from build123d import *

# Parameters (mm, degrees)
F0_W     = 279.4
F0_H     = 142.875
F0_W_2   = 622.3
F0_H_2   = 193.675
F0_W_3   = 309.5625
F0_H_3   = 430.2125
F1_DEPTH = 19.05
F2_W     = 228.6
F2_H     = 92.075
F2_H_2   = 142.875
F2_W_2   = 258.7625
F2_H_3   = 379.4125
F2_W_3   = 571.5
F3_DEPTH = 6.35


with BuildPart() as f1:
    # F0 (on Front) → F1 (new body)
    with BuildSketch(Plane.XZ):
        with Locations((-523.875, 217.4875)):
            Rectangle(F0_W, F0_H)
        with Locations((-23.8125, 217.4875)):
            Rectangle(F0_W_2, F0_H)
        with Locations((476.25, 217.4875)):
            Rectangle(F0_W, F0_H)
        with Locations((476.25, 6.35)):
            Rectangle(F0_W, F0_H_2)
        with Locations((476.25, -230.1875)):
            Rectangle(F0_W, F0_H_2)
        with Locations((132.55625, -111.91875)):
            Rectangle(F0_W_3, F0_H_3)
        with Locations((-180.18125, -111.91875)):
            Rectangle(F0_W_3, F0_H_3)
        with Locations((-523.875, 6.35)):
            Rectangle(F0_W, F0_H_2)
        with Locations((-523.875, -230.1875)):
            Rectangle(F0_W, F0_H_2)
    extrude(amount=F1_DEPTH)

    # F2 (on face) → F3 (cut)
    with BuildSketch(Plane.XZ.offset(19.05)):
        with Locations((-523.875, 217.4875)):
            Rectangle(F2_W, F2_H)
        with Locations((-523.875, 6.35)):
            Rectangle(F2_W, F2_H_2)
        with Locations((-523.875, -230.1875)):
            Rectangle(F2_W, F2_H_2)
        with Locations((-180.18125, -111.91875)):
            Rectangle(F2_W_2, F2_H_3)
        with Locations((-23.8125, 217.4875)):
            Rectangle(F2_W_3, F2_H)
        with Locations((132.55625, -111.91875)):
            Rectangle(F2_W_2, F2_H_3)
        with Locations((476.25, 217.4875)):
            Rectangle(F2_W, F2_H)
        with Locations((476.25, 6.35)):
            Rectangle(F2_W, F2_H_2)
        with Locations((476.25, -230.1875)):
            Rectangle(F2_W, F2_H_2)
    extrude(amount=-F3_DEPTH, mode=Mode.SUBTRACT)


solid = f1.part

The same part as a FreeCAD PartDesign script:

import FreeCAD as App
import Part
import Sketcher
from FreeCAD import Vector
Q = App.Units.Quantity


def add_polygon(sketch, points):
    """Adds a closed chain of lines whose ends are joined by coincident constraints."""
    first, n = sketch.GeometryCount, len(points)
    for a, b in zip(points, points[1:] + points[:1]):
        sketch.addGeometry(Part.LineSegment(App.Vector(*a, 0), App.Vector(*b, 0)), False)
    for i in range(n):
        sketch.addConstraint(Sketcher.Constraint("Coincident", first + i, 2, first + (i + 1) % n, 1))

doc = App.newDocument("Part")
params = doc.addObject("Spreadsheet::Sheet", "Params")
for row, (alias, value) in enumerate([
    ("sketch1_width", "11 in"),
    ("sketch1_width2", "24.5 in"),
    ("sketch1_width3", "12.1875 in"),
    ("sketch1_height", "5.625 in"),
    ("sketch1_height2", "7.625 in"),
    ("pad1_length", "0.75 in"),
    ("sketch2_width", "9 in"),
    ("sketch2_width2", "22.5 in"),
    ("sketch2_width3", "10.1875 in"),
    ("sketch2_height", "3.625 in"),
    ("sketch2_height2", "5.625 in"),
    ("pocket1_length", "0.25 in"),
], start=1):
    params.set(f"A{row}", alias)
    params.set(f"B{row}", "=" + value)
    params.setAlias(f"B{row}", alias)

body = doc.addObject("PartDesign::Body", "Body")
body.AllowCompound = True

sketch1 = doc.addObject("Sketcher::SketchObject", "Sketch")
body.addObject(sketch1)
sketch1.AttachmentSupport = (doc.XZ_Plane, [""])
sketch1.MapMode = "FlatFace"
add_polygon(sketch1, [(-664, 289), (-664, 146), (-384, 146), (-384, 289)])
add_polygon(sketch1, [(-335, 289), (-335, 146), (287, 146), (287, 289)])
add_polygon(sketch1, [(337, 289), (337, 146), (616, 146), (616, 289)])
add_polygon(sketch1, [(337, 103), (337, -90), (616, -90), (616, 103)])
add_polygon(sketch1, [(337, -133), (337, -327), (616, -327), (616, -133)])
add_polygon(sketch1, [(-22, 103), (-22, -327), (287, -327), (287, 103)])
add_polygon(sketch1, [(-335, 103), (-335, -327), (-25, -327), (-25, 103)])
add_polygon(sketch1, [(-664, 103), (-664, -90), (-384, -90), (-384, 103)])
add_polygon(sketch1, [(-664, -133), (-664, -327), (-384, -327), (-384, -133)])
sketch1.addConstraint([
    Sketcher.Constraint("Vertical", 0),
    Sketcher.Constraint("Horizontal", 1),
    Sketcher.Constraint("Vertical", 2),
    Sketcher.Constraint("Horizontal", 3),
    Sketcher.Constraint("Vertical", 4),
    Sketcher.Constraint("Horizontal", 5),
    Sketcher.Constraint("Vertical", 6),
    Sketcher.Constraint("Horizontal", 7),
    Sketcher.Constraint("Vertical", 8),
    Sketcher.Constraint("Horizontal", 9),
    Sketcher.Constraint("Vertical", 10),
    Sketcher.Constraint("Horizontal", 11),
    Sketcher.Constraint("Vertical", 12),
    Sketcher.Constraint("Horizontal", 13),
    Sketcher.Constraint("Vertical", 14),
    Sketcher.Constraint("Horizontal", 15),
    Sketcher.Constraint("Vertical", 16),
    Sketcher.Constraint("Horizontal", 17),
    Sketcher.Constraint("Vertical", 18),
    Sketcher.Constraint("Horizontal", 19),
    Sketcher.Constraint("Vertical", 20),
    Sketcher.Constraint("Horizontal", 21),
    Sketcher.Constraint("Vertical", 22),
    Sketcher.Constraint("Horizontal", 23),
    Sketcher.Constraint("Vertical", 24),
    Sketcher.Constraint("Horizontal", 25),
    Sketcher.Constraint("Vertical", 26),
    Sketcher.Constraint("Horizontal", 27),
    Sketcher.Constraint("Vertical", 28),
    Sketcher.Constraint("Horizontal", 29),
    Sketcher.Constraint("Vertical", 30),
    Sketcher.Constraint("Horizontal", 31),
    Sketcher.Constraint("Vertical", 32),
    Sketcher.Constraint("Horizontal", 33),
    Sketcher.Constraint("Vertical", 34),
    Sketcher.Constraint("Horizontal", 35),
    Sketcher.Constraint("Horizontal", 1, 2, 4, 2),
    Sketcher.Constraint("Horizontal", 3, 2, 6, 2),
    Sketcher.Constraint("Horizontal", 5, 2, 8, 2),
    Sketcher.Constraint("Horizontal", 7, 2, 10, 2),
    Sketcher.Constraint("Horizontal", 17, 2, 20, 2),
    Sketcher.Constraint("Horizontal", 15, 2, 22, 2),
    Sketcher.Constraint("Horizontal", 21, 2, 24, 2),
    Sketcher.Constraint("Horizontal", 23, 2, 26, 2),
    Sketcher.Constraint("Horizontal", 13, 2, 28, 2),
    Sketcher.Constraint("Horizontal", 27, 2, 30, 2),
    Sketcher.Constraint("Horizontal", 25, 2, 32, 2),
    Sketcher.Constraint("Horizontal", 19, 2, 34, 2),
    Sketcher.Constraint("Vertical", 11, 2, 12, 2),
    Sketcher.Constraint("Vertical", 10, 2, 13, 2),
    Sketcher.Constraint("Vertical", 15, 2, 16, 2),
    Sketcher.Constraint("Vertical", 14, 2, 17, 2),
    Sketcher.Constraint("Vertical", 6, 2, 21, 2),
    Sketcher.Constraint("Vertical", 7, 2, 24, 2),
    Sketcher.Constraint("Vertical", 3, 2, 28, 2),
    Sketcher.Constraint("Vertical", 2, 2, 29, 2),
    Sketcher.Constraint("Vertical", 31, 2, 32, 2),
    Sketcher.Constraint("Vertical", 30, 2, 33, 2),
    Sketcher.Constraint("Equal", 3, 9),
    Sketcher.Constraint("Equal", 23, 25),
    Sketcher.Constraint("Equal", 14, 16),
    Sketcher.Constraint("DistanceX", 1, 1, 1, 2, Q("11 in")),
    Sketcher.Constraint("DistanceX", 5, 1, 5, 2, Q("24.5 in")),
    Sketcher.Constraint("DistanceX", 25, 2, -1, 1, Q("1 in")),
    Sketcher.Constraint("DistanceY", 18, 2, 9, 2, Q("11 in")),
    Sketcher.Constraint("DistanceX", 21, 1, 21, 2, Q("12.1875 in")),
    Sketcher.Constraint("DistanceY", 0, 2, 0, 1, Q("5.625 in")),
    Sketcher.Constraint("DistanceY", 12, 2, 12, 1, Q("7.625 in")),
    Sketcher.Constraint("DistanceY", 20, 2, 20, 1, Q("16.9375 in")),
    Sketcher.Constraint("DistanceY", -1, 1, 0, 2, Q("5.75 in")),
    Sketcher.Constraint("DistanceX", -1, 1, 8, 2, Q("13.25 in")),
    Sketcher.Constraint("DistanceX", 33, 2, 20, 2, Q("14.25 in")),
])
sketch1.setExpression("Constraints[97]", "Params.sketch1_width")
sketch1.setExpression("Constraints[98]", "Params.sketch1_width2")
sketch1.setExpression("Constraints[101]", "Params.sketch1_width3")
sketch1.setExpression("Constraints[102]", "Params.sketch1_height")
sketch1.setExpression("Constraints[103]", "Params.sketch1_height2")
pad1 = doc.addObject("PartDesign::Pad", "Pad")
body.addObject(pad1)
pad1.Profile = sketch1
pad1.setExpression("Length", "Params.pad1_length")

sketch2 = doc.addObject("Sketcher::SketchObject", "Sketch001")
body.addObject(sketch2)
sketch2.AttachmentSupport = (doc.XZ_Plane, [""])
sketch2.MapMode = "FlatFace"
sketch2.AttachmentOffset = App.Placement(Vector(0, 0, 0.75 * 25.4), App.Rotation())
add_polygon(sketch2, [(-638, 264), (-638, 171), (-410, 171), (-410, 264)])
add_polygon(sketch2, [(-638, 78), (-638, -65), (-410, -65), (-410, 78)])
add_polygon(sketch2, [(-638, -159), (-638, -302), (-410, -302), (-410, -159)])
add_polygon(sketch2, [(-310, 78), (-310, -302), (-51, -302), (-51, 78)])
add_polygon(sketch2, [(-310, 264), (-310, 171), (262, 171), (262, 264)])
add_polygon(sketch2, [(3, 78), (3, -302), (262, -302), (262, 78)])
add_polygon(sketch2, [(362, 264), (362, 171), (591, 171), (591, 264)])
add_polygon(sketch2, [(362, 78), (362, -65), (591, -65), (591, 78)])
add_polygon(sketch2, [(362, -159), (362, -302), (591, -302), (591, -159)])
sketch2.addConstraint([
    Sketcher.Constraint("Vertical", 0),
    Sketcher.Constraint("Horizontal", 1),
    Sketcher.Constraint("Vertical", 2),
    Sketcher.Constraint("Horizontal", 3),
    Sketcher.Constraint("Vertical", 4),
    Sketcher.Constraint("Horizontal", 5),
    Sketcher.Constraint("Vertical", 6),
    Sketcher.Constraint("Horizontal", 7),
    Sketcher.Constraint("Vertical", 8),
    Sketcher.Constraint("Horizontal", 9),
    Sketcher.Constraint("Vertical", 10),
    Sketcher.Constraint("Horizontal", 11),
    Sketcher.Constraint("Vertical", 12),
    Sketcher.Constraint("Horizontal", 13),
    Sketcher.Constraint("Vertical", 14),
    Sketcher.Constraint("Horizontal", 15),
    Sketcher.Constraint("Vertical", 16),
    Sketcher.Constraint("Horizontal", 17),
    Sketcher.Constraint("Vertical", 18),
    Sketcher.Constraint("Horizontal", 19),
    Sketcher.Constraint("Vertical", 20),
    Sketcher.Constraint("Horizontal", 21),
    Sketcher.Constraint("Vertical", 22),
    Sketcher.Constraint("Horizontal", 23),
    Sketcher.Constraint("Vertical", 24),
    Sketcher.Constraint("Horizontal", 25),
    Sketcher.Constraint("Vertical", 26),
    Sketcher.Constraint("Horizontal", 27),
    Sketcher.Constraint("Vertical", 28),
    Sketcher.Constraint("Horizontal", 29),
    Sketcher.Constraint("Vertical", 30),
    Sketcher.Constraint("Horizontal", 31),
    Sketcher.Constraint("Vertical", 32),
    Sketcher.Constraint("Horizontal", 33),
    Sketcher.Constraint("Vertical", 34),
    Sketcher.Constraint("Horizontal", 35),
    Sketcher.Constraint("Horizontal", 9, 2, 12, 2),
    Sketcher.Constraint("Horizontal", 7, 2, 14, 2),
    Sketcher.Constraint("Horizontal", 1, 2, 16, 2),
    Sketcher.Constraint("Horizontal", 3, 2, 18, 2),
    Sketcher.Constraint("Horizontal", 13, 2, 20, 2),
    Sketcher.Constraint("Horizontal", 15, 2, 22, 2),
    Sketcher.Constraint("Horizontal", 17, 2, 24, 2),
    Sketcher.Constraint("Horizontal", 19, 2, 26, 2),
    Sketcher.Constraint("Horizontal", 5, 2, 28, 2),
    Sketcher.Constraint("Horizontal", 23, 2, 30, 2),
    Sketcher.Constraint("Horizontal", 21, 2, 32, 2),
    Sketcher.Constraint("Horizontal", 11, 2, 34, 2),
    Sketcher.Constraint("Vertical", 3, 2, 4, 2),
    Sketcher.Constraint("Vertical", 2, 2, 5, 2),
    Sketcher.Constraint("Vertical", 7, 2, 8, 2),
    Sketcher.Constraint("Vertical", 6, 2, 9, 2),
    Sketcher.Constraint("Vertical", 15, 2, 16, 2),
    Sketcher.Constraint("Vertical", 18, 2, 21, 2),
    Sketcher.Constraint("Vertical", 27, 2, 28, 2),
    Sketcher.Constraint("Vertical", 26, 2, 29, 2),
    Sketcher.Constraint("Vertical", 31, 2, 32, 2),
    Sketcher.Constraint("Vertical", 30, 2, 33, 2),
    Sketcher.Constraint("Equal", 15, 21),
    Sketcher.Constraint("Equal", 11, 25),
    Sketcher.Constraint("Equal", 6, 8),
    Sketcher.Constraint("DistanceX", 1, 1, 1, 2, Q("9 in")),
    Sketcher.Constraint("DistanceX", 17, 1, 17, 2, Q("22.5 in")),
    Sketcher.Constraint("DistanceX", 13, 2, -1, 1, Q("2 in")),
    Sketcher.Constraint("DistanceX", 13, 1, 13, 2, Q("10.1875 in")),
    Sketcher.Constraint("DistanceY", 0, 2, 0, 1, Q("3.625 in")),
    Sketcher.Constraint("DistanceY", 4, 2, 4, 1, Q("5.625 in")),
    Sketcher.Constraint("DistanceY", 12, 2, 12, 1, Q("14.9375 in")),
    Sketcher.Constraint("DistanceY", -1, 1, 0, 2, Q("6.75 in")),
    Sketcher.Constraint("DistanceY", 10, 2, -1, 1, Q("6.25 in")),
    Sketcher.Constraint("DistanceX", -1, 1, 24, 2, Q("14.25 in")),
    Sketcher.Constraint("DistanceX", 9, 2, 20, 2, Q("16.25 in")),
])
sketch2.setExpression("Constraints[97]", "Params.sketch2_width")
sketch2.setExpression("Constraints[98]", "Params.sketch2_width2")
sketch2.setExpression("Constraints[100]", "Params.sketch2_width3")
sketch2.setExpression("Constraints[101]", "Params.sketch2_height")
sketch2.setExpression("Constraints[102]", "Params.sketch2_height2")
pocket1 = doc.addObject("PartDesign::Pocket", "Pocket")
body.addObject(pocket1)
pocket1.Profile = sketch2
pocket1.setExpression("Length", "Params.pocket1_length")

doc.recompute()
